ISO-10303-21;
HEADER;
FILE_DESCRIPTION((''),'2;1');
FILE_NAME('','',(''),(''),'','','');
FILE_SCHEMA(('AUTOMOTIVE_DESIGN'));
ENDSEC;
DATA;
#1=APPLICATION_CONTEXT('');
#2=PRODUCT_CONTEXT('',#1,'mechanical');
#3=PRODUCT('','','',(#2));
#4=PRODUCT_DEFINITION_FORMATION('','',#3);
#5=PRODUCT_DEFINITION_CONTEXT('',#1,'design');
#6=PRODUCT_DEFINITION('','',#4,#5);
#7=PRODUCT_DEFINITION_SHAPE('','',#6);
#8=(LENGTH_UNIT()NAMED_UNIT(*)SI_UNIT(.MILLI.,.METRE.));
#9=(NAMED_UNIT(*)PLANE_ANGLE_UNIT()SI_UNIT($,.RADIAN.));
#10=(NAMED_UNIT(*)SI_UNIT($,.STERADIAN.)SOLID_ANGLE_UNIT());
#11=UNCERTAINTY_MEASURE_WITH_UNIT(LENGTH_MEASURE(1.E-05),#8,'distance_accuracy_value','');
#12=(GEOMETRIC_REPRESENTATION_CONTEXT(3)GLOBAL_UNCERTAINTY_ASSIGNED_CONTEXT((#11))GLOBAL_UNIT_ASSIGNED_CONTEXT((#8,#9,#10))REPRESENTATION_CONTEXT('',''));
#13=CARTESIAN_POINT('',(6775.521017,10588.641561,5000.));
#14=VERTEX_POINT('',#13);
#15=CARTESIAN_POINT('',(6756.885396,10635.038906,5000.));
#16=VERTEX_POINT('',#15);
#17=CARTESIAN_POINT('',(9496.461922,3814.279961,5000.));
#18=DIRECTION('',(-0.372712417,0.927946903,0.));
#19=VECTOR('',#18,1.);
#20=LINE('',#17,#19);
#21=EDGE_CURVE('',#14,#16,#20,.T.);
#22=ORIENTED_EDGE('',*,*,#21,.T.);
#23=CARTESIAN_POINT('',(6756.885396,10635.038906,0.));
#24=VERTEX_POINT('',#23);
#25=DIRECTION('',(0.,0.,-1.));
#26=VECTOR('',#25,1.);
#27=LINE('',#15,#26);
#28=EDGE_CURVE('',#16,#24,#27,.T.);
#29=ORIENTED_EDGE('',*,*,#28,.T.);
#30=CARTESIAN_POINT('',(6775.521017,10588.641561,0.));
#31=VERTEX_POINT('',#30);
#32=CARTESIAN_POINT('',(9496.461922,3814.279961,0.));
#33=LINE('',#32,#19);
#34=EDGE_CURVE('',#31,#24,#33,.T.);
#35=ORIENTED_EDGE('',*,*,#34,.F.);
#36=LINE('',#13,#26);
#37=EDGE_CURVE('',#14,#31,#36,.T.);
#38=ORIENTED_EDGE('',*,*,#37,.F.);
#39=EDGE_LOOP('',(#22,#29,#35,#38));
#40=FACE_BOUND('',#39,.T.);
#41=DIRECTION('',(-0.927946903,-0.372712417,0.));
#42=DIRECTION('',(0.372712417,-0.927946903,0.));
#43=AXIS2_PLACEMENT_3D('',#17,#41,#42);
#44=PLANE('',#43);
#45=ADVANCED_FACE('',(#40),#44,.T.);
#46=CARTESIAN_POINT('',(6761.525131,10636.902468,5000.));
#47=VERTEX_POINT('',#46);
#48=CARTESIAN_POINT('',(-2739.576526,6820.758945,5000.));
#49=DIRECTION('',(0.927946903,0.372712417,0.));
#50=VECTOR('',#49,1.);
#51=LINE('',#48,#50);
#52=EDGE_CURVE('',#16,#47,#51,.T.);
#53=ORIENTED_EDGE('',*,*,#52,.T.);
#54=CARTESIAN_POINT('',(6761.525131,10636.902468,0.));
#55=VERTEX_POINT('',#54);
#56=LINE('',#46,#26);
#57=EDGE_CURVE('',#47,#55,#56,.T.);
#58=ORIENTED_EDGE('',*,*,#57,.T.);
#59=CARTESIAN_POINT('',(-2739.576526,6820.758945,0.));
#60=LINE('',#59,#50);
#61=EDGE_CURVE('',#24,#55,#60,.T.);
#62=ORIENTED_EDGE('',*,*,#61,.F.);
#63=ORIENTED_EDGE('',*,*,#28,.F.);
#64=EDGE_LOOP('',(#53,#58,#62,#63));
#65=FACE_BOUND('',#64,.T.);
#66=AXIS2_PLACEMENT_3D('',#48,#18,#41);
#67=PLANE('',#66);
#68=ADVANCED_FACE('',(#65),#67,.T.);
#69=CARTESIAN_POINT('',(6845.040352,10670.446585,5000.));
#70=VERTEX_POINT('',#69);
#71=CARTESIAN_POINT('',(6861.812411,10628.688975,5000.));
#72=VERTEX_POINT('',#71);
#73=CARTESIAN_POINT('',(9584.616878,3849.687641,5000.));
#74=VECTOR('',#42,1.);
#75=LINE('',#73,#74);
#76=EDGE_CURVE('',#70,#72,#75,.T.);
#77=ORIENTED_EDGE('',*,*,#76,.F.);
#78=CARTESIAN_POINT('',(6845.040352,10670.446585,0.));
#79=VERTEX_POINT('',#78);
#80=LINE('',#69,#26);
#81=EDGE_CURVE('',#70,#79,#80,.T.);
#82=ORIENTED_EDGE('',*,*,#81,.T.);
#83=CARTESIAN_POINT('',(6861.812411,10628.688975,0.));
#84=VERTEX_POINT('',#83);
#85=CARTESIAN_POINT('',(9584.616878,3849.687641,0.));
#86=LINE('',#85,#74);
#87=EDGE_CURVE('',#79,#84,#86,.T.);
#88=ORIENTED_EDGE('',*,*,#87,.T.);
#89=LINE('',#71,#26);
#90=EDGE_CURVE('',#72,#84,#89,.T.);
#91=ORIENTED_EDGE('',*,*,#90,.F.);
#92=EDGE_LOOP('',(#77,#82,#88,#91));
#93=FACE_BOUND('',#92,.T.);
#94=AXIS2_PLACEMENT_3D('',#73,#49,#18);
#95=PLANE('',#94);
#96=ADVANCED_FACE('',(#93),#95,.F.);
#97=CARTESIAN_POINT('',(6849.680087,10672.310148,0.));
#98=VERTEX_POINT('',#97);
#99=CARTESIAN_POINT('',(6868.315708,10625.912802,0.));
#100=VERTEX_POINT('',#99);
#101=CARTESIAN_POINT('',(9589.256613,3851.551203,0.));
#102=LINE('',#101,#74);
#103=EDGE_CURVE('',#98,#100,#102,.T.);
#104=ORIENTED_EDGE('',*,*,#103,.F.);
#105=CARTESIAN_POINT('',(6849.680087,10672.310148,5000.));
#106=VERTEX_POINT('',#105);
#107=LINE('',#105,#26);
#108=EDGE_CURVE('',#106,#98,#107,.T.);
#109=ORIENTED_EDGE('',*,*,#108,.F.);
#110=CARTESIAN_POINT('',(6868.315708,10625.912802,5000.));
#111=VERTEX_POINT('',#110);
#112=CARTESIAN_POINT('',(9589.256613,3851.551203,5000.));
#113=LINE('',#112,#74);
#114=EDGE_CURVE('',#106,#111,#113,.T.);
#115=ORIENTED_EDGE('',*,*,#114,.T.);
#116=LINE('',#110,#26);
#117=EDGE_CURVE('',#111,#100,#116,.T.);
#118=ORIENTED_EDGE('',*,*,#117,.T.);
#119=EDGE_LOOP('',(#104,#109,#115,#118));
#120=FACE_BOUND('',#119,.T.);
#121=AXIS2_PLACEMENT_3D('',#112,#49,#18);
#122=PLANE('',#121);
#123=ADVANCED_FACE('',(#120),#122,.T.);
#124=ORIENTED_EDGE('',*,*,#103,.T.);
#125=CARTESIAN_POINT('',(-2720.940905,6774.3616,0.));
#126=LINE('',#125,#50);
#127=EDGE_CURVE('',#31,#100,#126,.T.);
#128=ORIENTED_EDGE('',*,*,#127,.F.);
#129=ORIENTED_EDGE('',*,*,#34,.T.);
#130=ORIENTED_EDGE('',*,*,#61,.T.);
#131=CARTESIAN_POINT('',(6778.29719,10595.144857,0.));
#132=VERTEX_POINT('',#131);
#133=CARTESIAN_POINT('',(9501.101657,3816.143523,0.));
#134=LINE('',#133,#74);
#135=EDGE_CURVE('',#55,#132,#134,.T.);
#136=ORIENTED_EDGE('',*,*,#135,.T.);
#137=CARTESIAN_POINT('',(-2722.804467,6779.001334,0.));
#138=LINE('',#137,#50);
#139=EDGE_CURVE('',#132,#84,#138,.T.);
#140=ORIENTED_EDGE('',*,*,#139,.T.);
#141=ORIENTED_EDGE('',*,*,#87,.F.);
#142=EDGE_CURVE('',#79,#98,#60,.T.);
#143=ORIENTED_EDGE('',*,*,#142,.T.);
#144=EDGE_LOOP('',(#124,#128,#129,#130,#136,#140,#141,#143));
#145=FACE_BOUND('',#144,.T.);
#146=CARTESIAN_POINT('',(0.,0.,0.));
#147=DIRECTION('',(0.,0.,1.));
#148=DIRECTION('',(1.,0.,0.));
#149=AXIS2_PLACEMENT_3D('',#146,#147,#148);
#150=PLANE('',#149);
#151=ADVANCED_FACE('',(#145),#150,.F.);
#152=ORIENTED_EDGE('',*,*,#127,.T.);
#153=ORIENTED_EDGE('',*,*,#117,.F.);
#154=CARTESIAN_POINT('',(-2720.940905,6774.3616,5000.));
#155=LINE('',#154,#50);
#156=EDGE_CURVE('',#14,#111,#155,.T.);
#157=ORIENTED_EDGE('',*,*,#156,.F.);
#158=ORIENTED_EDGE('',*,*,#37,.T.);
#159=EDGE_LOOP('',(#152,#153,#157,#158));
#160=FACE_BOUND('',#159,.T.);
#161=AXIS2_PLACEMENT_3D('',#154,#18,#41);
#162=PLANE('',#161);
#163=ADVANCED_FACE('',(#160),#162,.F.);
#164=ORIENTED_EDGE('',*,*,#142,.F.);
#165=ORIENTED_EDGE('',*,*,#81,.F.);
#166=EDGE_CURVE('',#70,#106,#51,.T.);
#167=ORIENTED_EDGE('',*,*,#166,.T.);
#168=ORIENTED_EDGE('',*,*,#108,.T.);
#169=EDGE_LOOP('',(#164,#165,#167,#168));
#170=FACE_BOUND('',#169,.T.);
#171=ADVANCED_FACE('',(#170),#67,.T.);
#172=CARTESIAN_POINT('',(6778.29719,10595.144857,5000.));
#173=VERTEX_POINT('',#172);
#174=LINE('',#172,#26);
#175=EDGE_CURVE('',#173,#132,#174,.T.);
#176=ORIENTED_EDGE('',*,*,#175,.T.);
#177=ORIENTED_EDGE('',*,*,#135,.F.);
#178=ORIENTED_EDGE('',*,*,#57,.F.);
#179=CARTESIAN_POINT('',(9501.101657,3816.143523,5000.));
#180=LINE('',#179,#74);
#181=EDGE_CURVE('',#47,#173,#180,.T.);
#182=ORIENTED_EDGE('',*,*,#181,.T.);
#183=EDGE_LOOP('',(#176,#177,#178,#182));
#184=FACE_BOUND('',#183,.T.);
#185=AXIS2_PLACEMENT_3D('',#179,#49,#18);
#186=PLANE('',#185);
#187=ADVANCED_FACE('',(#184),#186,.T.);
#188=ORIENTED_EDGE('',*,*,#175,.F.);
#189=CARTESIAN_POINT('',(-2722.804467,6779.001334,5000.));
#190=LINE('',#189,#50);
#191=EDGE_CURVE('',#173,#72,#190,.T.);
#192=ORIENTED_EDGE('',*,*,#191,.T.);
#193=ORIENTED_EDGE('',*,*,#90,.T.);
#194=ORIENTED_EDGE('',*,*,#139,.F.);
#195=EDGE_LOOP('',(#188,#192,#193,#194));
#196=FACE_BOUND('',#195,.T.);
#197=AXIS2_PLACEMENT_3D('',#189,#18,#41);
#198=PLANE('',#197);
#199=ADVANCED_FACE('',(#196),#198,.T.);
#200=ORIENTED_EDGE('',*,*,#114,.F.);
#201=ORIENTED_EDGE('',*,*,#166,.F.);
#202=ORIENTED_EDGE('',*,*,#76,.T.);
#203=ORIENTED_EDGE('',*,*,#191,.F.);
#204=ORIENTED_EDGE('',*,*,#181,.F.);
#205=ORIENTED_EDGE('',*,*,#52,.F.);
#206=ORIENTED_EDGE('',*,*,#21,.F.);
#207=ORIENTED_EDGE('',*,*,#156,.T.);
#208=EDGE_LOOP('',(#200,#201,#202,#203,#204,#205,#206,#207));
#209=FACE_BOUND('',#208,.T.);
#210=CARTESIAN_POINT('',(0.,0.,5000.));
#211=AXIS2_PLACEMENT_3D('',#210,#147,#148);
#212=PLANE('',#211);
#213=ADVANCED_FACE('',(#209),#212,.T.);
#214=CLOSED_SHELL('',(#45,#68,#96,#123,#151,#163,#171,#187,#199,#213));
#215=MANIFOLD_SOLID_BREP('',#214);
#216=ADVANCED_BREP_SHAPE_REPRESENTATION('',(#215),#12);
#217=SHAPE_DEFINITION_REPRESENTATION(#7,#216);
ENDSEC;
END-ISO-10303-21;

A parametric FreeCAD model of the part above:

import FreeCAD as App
import Part
import Sketcher

doc = App.newDocument("Part")
body = doc.addObject("PartDesign::Body", "Body")

# Sketch on XY plane
sketch1 = body.newObject("Sketcher::SketchObject", "Sketch")
sketch1.AttachmentSupport = (doc.getObject("XY_Plane"), [""])
sketch1.MapMode = "FlatFace"
sketch1.addGeometry([
    Part.LineSegment(App.Vector(6756.9, 10635, 0), App.Vector(6775.5, 10588.6, 0)),  # 0
    Part.LineSegment(App.Vector(6775.5, 10588.6, 0), App.Vector(6868.3, 10625.9, 0)),  # 1
    Part.LineSegment(App.Vector(6868.3, 10625.9, 0), App.Vector(6849.7, 10672.3, 0)),  # 2
    Part.LineSegment(App.Vector(6849.7, 10672.3, 0), App.Vector(6845, 10670.4, 0)),  # 3
    Part.LineSegment(App.Vector(6845, 10670.4, 0), App.Vector(6861.8, 10628.7, 0)),  # 4
    Part.LineSegment(App.Vector(6861.8, 10628.7, 0), App.Vector(6778.3, 10595.1, 0)),  # 5
    Part.LineSegment(App.Vector(6778.3, 10595.1, 0), App.Vector(6761.5, 10636.9, 0)),  # 6
    Part.LineSegment(App.Vector(6761.5, 10636.9, 0), App.Vector(6756.9, 10635, 0)),  # 7
], False)
sketch1.addConstraint([
    Sketcher.Constraint("Coincident", 0, 2, 1, 1),
    Sketcher.Constraint("Coincident", 1, 2, 2, 1),
    Sketcher.Constraint("Coincident", 2, 2, 3, 1),
    Sketcher.Constraint("Coincident", 3, 2, 4, 1),
    Sketcher.Constraint("Coincident", 4, 2, 5, 1),
    Sketcher.Constraint("Coincident", 5, 2, 6, 1),
    Sketcher.Constraint("Coincident", 6, 2, 7, 1),
    Sketcher.Constraint("Coincident", 7, 2, 0, 1),
    Sketcher.Constraint("Perpendicular", 0, 1),
    Sketcher.Constraint("Perpendicular", 1, 2),
    Sketcher.Constraint("Perpendicular", 2, 3),
    Sketcher.Constraint("Perpendicular", 3, 4),
    Sketcher.Constraint("Perpendicular", 4, 5),
    Sketcher.Constraint("Perpendicular", 5, 6),
    Sketcher.Constraint("Perpendicular", 6, 7),
    Sketcher.Constraint("Equal", 0, 2),
    Sketcher.Constraint("Equal", 3, 7),
    Sketcher.Constraint("Distance", 0, 50.0),
    Sketcher.Constraint("Distance", 1, 100.0),
    Sketcher.Constraint("Distance", 3, 5.0),
    Sketcher.Constraint("Distance", 4, 45.0),
    Sketcher.Constraint("DistanceY", -1, 1, 0, 2, 10588.641561),
    Sketcher.Constraint("DistanceX", -1, 1, 4, 2, 6861.812411),
    Sketcher.Constraint("DistanceX", -1, 1, 5, 2, 6778.29719),
])
pad1 = body.newObject("PartDesign::Pad", "Pad")
pad1.Profile = sketch1
pad1.Length = 5000

doc.recompute()
